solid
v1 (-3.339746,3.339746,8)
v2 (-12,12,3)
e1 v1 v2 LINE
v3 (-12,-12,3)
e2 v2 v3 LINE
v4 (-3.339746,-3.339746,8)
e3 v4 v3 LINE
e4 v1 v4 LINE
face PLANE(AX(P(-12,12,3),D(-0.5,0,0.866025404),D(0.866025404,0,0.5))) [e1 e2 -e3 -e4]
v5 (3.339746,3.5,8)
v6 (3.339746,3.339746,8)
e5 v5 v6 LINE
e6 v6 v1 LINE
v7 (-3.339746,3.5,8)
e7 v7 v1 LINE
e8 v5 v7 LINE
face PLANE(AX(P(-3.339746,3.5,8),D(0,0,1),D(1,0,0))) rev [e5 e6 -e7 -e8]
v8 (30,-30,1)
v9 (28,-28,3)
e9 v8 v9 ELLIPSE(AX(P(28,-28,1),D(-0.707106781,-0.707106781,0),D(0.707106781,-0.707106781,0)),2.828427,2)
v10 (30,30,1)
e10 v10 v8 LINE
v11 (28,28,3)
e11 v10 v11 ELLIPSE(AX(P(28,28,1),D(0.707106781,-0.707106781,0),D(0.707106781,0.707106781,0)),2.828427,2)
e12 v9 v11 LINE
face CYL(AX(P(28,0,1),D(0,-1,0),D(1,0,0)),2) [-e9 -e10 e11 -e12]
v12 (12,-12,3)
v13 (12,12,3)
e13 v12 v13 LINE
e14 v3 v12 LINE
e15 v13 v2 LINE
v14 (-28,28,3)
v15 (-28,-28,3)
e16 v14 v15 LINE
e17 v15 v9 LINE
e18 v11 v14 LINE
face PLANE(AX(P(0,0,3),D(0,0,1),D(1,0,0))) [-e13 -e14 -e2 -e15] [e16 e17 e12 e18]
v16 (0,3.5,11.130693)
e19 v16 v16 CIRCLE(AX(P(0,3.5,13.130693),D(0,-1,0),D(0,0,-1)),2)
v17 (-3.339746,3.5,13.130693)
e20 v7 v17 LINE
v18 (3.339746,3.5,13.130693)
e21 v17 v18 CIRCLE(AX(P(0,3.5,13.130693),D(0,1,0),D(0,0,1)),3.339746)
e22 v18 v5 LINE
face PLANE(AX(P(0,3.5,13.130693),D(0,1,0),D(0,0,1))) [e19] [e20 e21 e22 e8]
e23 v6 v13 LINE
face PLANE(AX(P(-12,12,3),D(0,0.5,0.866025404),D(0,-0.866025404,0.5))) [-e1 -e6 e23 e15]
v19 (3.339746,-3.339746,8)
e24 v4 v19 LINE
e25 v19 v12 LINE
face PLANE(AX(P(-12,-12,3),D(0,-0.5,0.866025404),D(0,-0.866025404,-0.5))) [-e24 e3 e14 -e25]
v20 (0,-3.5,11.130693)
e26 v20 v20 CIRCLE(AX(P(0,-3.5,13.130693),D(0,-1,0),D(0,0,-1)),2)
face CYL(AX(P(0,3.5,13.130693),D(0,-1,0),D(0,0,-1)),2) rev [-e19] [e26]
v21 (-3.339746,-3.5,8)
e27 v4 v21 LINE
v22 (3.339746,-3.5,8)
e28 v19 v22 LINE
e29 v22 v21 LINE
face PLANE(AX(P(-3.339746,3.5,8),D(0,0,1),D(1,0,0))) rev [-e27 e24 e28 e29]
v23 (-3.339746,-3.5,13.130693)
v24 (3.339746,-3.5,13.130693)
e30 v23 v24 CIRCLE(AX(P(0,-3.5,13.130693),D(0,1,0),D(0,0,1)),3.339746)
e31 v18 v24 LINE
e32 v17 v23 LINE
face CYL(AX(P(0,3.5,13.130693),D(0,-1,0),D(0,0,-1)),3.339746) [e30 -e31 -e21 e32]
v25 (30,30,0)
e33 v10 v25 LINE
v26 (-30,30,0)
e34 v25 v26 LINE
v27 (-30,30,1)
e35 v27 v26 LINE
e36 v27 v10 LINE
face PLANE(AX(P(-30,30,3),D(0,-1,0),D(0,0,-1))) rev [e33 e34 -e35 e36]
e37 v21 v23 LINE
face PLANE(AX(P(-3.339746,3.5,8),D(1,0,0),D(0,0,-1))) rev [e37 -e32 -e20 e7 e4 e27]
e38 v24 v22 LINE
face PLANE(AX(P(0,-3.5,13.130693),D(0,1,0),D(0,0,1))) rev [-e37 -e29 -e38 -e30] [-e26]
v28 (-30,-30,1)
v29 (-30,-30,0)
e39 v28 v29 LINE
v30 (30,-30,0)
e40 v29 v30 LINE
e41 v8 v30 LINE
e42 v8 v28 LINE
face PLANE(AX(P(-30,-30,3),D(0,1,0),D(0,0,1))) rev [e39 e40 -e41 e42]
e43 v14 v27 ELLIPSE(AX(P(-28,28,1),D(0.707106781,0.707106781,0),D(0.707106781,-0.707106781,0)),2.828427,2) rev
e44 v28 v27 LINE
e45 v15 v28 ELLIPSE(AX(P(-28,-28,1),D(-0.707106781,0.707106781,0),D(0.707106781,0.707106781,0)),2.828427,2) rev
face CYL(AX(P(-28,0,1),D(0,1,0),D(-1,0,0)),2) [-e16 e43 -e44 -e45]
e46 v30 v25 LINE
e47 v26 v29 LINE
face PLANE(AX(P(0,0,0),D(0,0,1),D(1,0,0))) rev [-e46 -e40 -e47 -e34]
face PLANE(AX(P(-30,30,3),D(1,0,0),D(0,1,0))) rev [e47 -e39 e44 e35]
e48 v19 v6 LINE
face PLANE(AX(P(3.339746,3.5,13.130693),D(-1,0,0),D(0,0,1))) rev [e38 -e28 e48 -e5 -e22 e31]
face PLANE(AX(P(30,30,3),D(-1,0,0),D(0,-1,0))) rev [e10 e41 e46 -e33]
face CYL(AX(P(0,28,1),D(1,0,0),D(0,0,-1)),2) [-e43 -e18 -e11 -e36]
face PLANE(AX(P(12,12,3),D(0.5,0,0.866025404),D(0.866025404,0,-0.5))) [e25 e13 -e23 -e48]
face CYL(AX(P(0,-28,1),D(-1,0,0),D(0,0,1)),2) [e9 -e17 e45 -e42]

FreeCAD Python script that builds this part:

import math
import FreeCAD as App
import Part
import Sketcher

V = App.Vector


def edges_at(feature, points):
    """Names of the edges that pass closest to the given points."""
    edges = feature.Shape.Edges
    near = lambda p: min(range(len(edges)), key=lambda i: edges[i].distToShape(Part.Vertex(*p))[0])
    return sorted({f"Edge{near(p) + 1}" for p in points})


def add_polygon(sketch, points):
    """Adds a closed chain of lines whose ends are joined by coincident constraints."""
    first, n = sketch.GeometryCount, len(points)
    for a, b in zip(points, points[1:] + points[:1]):
        sketch.addGeometry(Part.LineSegment(App.Vector(*a, 0), App.Vector(*b, 0)), False)
    for i in range(n):
        sketch.addConstraint(Sketcher.Constraint("Coincident", first + i, 2, first + (i + 1) % n, 1))

doc = App.newDocument("Part")
body = doc.addObject("PartDesign::Body", "Body")

# Sketch on XY plane
sketch1 = body.newObject("Sketcher::SketchObject", "Sketch")
sketch1.AttachmentSupport = (doc.getObject("XY_Plane"), [""])
sketch1.MapMode = "FlatFace"
add_polygon(sketch1, [(-30, 30), (-30, -30), (30, -30), (30, 30)])  # lines 0-3
sketch1.addConstraint(Sketcher.Constraint("Vertical", 0))
sketch1.addConstraint(Sketcher.Constraint("Horizontal", 1))
sketch1.addConstraint(Sketcher.Constraint("Vertical", 2))
sketch1.addConstraint(Sketcher.Constraint("Horizontal", 3))
sketch1.addConstraint(Sketcher.Constraint("Symmetric", 0, 2, 2, 2, -1, 1))
sketch1.addConstraint(Sketcher.Constraint("Equal", 3, 0))
sketch1.addConstraint(Sketcher.Constraint("DistanceX", 1, 1, 1, 2, 60.0))
pad1 = body.newObject("PartDesign::Pad", "Pad")
pad1.Profile = sketch1
pad1.Length = 3
doc.recompute()

fillet = body.newObject("PartDesign::Fillet", "Fillet")
fillet.Base = (pad1, edges_at(pad1, [
    (-30, 0, 3),
    (0, -30, 3),
    (30, 0, 3),
    (0, 30, 3),
]))
fillet.Radius = 2

# Sketch on XY plane
sketch2 = body.newObject("Sketcher::SketchObject", "Sketch001")
sketch2.AttachmentSupport = (doc.getObject("XY_Plane"), [""])
sketch2.MapMode = "FlatFace"
sketch2.AttachmentOffset = App.Placement(V(0, 0, 3), App.Rotation())
add_polygon(sketch2, [(-12, 12), (-12, -12), (12, -12), (12, 12)])  # lines 0-3
sketch2.addConstraint(Sketcher.Constraint("Vertical", 0))
sketch2.addConstraint(Sketcher.Constraint("Horizontal", 1))
sketch2.addConstraint(Sketcher.Constraint("Vertical", 2))
sketch2.addConstraint(Sketcher.Constraint("Horizontal", 3))
sketch2.addConstraint(Sketcher.Constraint("Symmetric", 0, 2, 2, 2, -1, 1))
sketch2.addConstraint(Sketcher.Constraint("Equal", 3, 0))
sketch2.addConstraint(Sketcher.Constraint("DistanceX", 1, 1, 1, 2, 24.0))
pad2 = body.newObject("PartDesign::Pad", "Pad001")
pad2.Profile = sketch2
pad2.Length = 5
pad2.TaperAngle = -60

# Sketch on XZ plane
sketch3 = body.newObject("Sketcher::SketchObject", "Sketch002")
sketch3.AttachmentSupport = (doc.getObject("XZ_Plane"), [""])
sketch3.MapMode = "FlatFace"
sketch3.addGeometry(Part.LineSegment(V(-3.3, 8, 0), V(-3.3, 13.1, 0)), False)
sketch3.addGeometry(Part.ArcOfCircle(Part.Circle(V(0, 13.1, 0), V(0, 0, 1), 3.3), math.radians(0), math.radians(180)), False)
sketch3.addGeometry(Part.LineSegment(V(3.3, 13.1, 0), V(3.3, 8, 0)), False)
sketch3.addGeometry(Part.LineSegment(V(3.3, 8, 0), V(-3.3, 8, 0)), False)
sketch3.addConstraint(Sketcher.Constraint("Tangent", 0, 2, 1, 2))
sketch3.addConstraint(Sketcher.Constraint("Tangent", 1, 1, 2, 1))
sketch3.addConstraint(Sketcher.Constraint("Coincident", 2, 2, 3, 1))
sketch3.addConstraint(Sketcher.Constraint("Coincident", 3, 2, 0, 1))
sketch3.addConstraint(Sketcher.Constraint("Vertical", 0))
sketch3.addConstraint(Sketcher.Constraint("Vertical", 2))
sketch3.addConstraint(Sketcher.Constraint("Horizontal", 3))
sketch3.addConstraint(Sketcher.Constraint("PointOnObject", 1, 3, -2))
sketch3.addConstraint(Sketcher.Constraint("DistanceY", -1, 1, 2, 2, 8.0))
sketch3.addConstraint(Sketcher.Constraint("Radius", 1, 3.339746))
sketch3.addConstraint(Sketcher.Constraint("DistanceY", 0, 1, 0, 2, 5.130693))
pad3 = body.newObject("PartDesign::Pad", "Pad002")
pad3.Profile = sketch3
pad3.Length = 7
pad3.Midplane = True

# Sketch on XZ plane
sketch4 = body.newObject("Sketcher::SketchObject", "Sketch003")
sketch4.AttachmentSupport = (doc.getObject("XZ_Plane"), [""])
sketch4.MapMode = "FlatFace"
sketch4.AttachmentOffset = App.Placement(V(0, 0, 3.5), App.Rotation())
sketch4.addGeometry(Part.Circle(V(0, 13.1, 0), V(0, 0, 1), 2), False)
sketch4.addConstraint(Sketcher.Constraint("PointOnObject", 0, 3, -2))
sketch4.addConstraint(Sketcher.Constraint("Diameter", 0, 4.0))
sketch4.addConstraint(Sketcher.Constraint("DistanceY", -1, 1, 0, 3, 13.130693))
pocket1 = body.newObject("PartDesign::Pocket", "Pocket")
pocket1.Profile = sketch4
pocket1.Length = 7

doc.recompute()
